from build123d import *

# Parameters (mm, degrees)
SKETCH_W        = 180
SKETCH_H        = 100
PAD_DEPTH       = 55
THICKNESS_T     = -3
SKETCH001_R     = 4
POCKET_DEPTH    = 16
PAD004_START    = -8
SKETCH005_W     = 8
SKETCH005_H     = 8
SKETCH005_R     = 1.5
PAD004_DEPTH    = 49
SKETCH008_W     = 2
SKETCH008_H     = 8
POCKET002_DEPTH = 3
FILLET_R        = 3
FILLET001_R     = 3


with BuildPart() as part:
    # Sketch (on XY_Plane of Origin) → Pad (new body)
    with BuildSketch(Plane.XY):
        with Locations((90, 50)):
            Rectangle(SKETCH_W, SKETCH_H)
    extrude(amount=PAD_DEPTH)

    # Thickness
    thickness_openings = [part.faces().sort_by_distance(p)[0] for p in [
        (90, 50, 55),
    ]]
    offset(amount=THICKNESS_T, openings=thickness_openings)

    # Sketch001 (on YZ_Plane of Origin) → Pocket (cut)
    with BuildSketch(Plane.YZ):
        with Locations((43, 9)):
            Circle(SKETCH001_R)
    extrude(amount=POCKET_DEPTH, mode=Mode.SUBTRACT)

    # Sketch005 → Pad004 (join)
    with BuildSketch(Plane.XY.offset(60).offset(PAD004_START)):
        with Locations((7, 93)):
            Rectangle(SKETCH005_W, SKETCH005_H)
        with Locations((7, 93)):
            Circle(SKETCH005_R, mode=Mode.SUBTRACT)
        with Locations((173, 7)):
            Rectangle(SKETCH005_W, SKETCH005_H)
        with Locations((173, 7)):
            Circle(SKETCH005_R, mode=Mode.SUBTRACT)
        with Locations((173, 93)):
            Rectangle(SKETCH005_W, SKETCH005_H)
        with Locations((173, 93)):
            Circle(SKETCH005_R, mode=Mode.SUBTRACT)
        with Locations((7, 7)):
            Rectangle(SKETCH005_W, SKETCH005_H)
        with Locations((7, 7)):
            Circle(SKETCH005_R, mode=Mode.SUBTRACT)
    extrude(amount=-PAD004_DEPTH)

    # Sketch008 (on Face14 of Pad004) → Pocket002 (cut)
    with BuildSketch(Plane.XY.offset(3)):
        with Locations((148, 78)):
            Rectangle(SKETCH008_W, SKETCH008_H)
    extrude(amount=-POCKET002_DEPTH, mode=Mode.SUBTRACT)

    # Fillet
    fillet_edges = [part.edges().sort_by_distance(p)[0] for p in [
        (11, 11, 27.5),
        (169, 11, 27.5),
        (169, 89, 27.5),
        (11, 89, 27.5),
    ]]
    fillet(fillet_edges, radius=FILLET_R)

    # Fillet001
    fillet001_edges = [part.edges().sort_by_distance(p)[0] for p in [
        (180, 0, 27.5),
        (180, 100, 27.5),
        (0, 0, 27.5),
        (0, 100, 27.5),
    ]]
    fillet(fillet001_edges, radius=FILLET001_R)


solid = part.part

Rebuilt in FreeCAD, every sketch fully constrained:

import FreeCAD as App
import Part
import Sketcher

V = App.Vector
Q = App.Units.Quantity


def edges_at(feature, points):
    """Names of the edges that pass closest to the given points."""
    edges = feature.Shape.Edges
    near = lambda p: min(range(len(edges)), key=lambda i: edges[i].distToShape(Part.Vertex(*p))[0])
    return sorted({f"Edge{near(p) + 1}" for p in points})


def faces_at(feature, points):
    """Names of the faces that lie closest to the given points."""
    faces = feature.Shape.Faces
    near = lambda p: min(range(len(faces)), key=lambda i: faces[i].distToShape(Part.Vertex(*p))[0])
    return sorted({f"Face{near(p) + 1}" for p in points})

doc = App.newDocument("Part")
body = doc.addObject("PartDesign::Body", "Body")

sketch1 = body.newObject("Sketcher::SketchObject", "Sketch")
sketch1.AttachmentSupport = (doc.getObject("XY_Plane"), [""])
sketch1.MapMode = "FlatFace"
sketch1.addGeometry([
    Part.LineSegment(V(0, 100, 0), V(0, 0, 0)),
    Part.LineSegment(V(0, 0, 0), V(180, 0, 0)),
    Part.LineSegment(V(180, 0, 0), V(180, 100, 0)),
    Part.LineSegment(V(180, 100, 0), V(0, 100, 0)),
], False)
sketch1.addConstraint([
    Sketcher.Constraint("Coincident", 0, 2, 1, 1),
    Sketcher.Constraint("Coincident", 1, 2, 2, 1),
    Sketcher.Constraint("Coincident", 2, 2, 3, 1),
    Sketcher.Constraint("Coincident", 3, 2, 0, 1),
    Sketcher.Constraint("Vertical", 0),
    Sketcher.Constraint("Horizontal", 1),
    Sketcher.Constraint("Vertical", 2),
    Sketcher.Constraint("Horizontal", 3),
    Sketcher.Constraint("Coincident", 0, 2, -1, 1),
    Sketcher.Constraint("DistanceX", 1, 1, 1, 2, Q("180 mm")),
    Sketcher.Constraint("DistanceY", 0, 2, 0, 1, Q("100 mm")),
])
pad1 = body.newObject("PartDesign::Pad", "Pad")
pad1.Profile = sketch1
pad1.Length = 55
doc.recompute()

thickness = body.newObject("PartDesign::Thickness", "Thickness")
thickness.Base = (pad1, faces_at(pad1, [(90, 50, 55)]))
thickness.Value = 3
thickness.Reversed = True
thickness.Join = "Arc"

sketch2 = body.newObject("Sketcher::SketchObject", "Sketch001")
sketch2.AttachmentSupport = (doc.getObject("YZ_Plane"), [""])
sketch2.MapMode = "FlatFace"
sketch2.addGeometry(Part.Circle(V(43, 9, 0), V(0, 0, 1), 4), False)
sketch2.addConstraint([
    Sketcher.Constraint("Diameter", 0, Q("8 mm")),
    Sketcher.Constraint("DistanceX", -1, 1, 0, 3, Q("43 mm")),
    Sketcher.Constraint("DistanceY", -1, 1, 0, 3, Q("9 mm")),
])
pocket1 = body.newObject("PartDesign::Pocket", "Pocket")
pocket1.Profile = sketch2
pocket1.Length = 16
pocket1.Reversed = True

sketch3 = body.newObject("Sketcher::SketchObject", "Sketch002")
sketch3.AttachmentSupport = (doc.getObject("XY_Plane"), [""])
sketch3.MapMode = "FlatFace"
sketch3.AttachmentOffset = App.Placement(V(0, 0, 52), App.Rotation())
sketch3.addGeometry([
    Part.LineSegment(V(3, 97, 0), V(3, 89, 0)),
    Part.LineSegment(V(3, 89, 0), V(11, 89, 0)),
    Part.LineSegment(V(11, 89, 0), V(11, 97, 0)),
    Part.LineSegment(V(11, 97, 0), V(3, 97, 0)),
    Part.Circle(V(7, 93, 0), V(0, 0, 1), 1.5),
    Part.LineSegment(V(169, 11, 0), V(169, 3, 0)),
    Part.LineSegment(V(169, 3, 0), V(177, 3, 0)),
    Part.LineSegment(V(177, 3, 0), V(177, 11, 0)),
    Part.LineSegment(V(177, 11, 0), V(169, 11, 0)),
    Part.Circle(V(173, 7, 0), V(0, 0, 1), 1.5),
    Part.LineSegment(V(169, 97, 0), V(169, 89, 0)),
    Part.LineSegment(V(169, 89, 0), V(177, 89, 0)),
    Part.LineSegment(V(177, 89, 0), V(177, 97, 0)),
    Part.LineSegment(V(177, 97, 0), V(169, 97, 0)),
    Part.Circle(V(173, 93, 0), V(0, 0, 1), 1.5),
    Part.LineSegment(V(3, 11, 0), V(3, 3, 0)),
    Part.LineSegment(V(3, 3, 0), V(11, 3, 0)),
    Part.LineSegment(V(11, 3, 0), V(11, 11, 0)),
    Part.LineSegment(V(11, 11, 0), V(3, 11, 0)),
    Part.Circle(V(7, 7, 0), V(0, 0, 1), 1.5),
], False)
sketch3.addConstraint([
    Sketcher.Constraint("Coincident", 0, 2, 1, 1),
    Sketcher.Constraint("Coincident", 1, 2, 2, 1),
    Sketcher.Constraint("Coincident", 2, 2, 3, 1),
    Sketcher.Constraint("Coincident", 3, 2, 0, 1),
    Sketcher.Constraint("Coincident", 5, 2, 6, 1),
    Sketcher.Constraint("Coincident", 6, 2, 7, 1),
    Sketcher.Constraint("Coincident", 7, 2, 8, 1),
    Sketcher.Constraint("Coincident", 8, 2, 5, 1),
    Sketcher.Constraint("Coincident", 10, 2, 11, 1),
    Sketcher.Constraint("Coincident", 11, 2, 12, 1),
    Sketcher.Constraint("Coincident", 12, 2, 13, 1),
    Sketcher.Constraint("Coincident", 13, 2, 10, 1),
    Sketcher.Constraint("Coincident", 15, 2, 16, 1),
    Sketcher.Constraint("Coincident", 16, 2, 17, 1),
    Sketcher.Constraint("Coincident", 17, 2, 18, 1),
    Sketcher.Constraint("Coincident", 18, 2, 15, 1),
    Sketcher.Constraint("Vertical", 0),
    Sketcher.Constraint("Horizontal", 1),
    Sketcher.Constraint("Vertical", 2),
    Sketcher.Constraint("Horizontal", 3),
    Sketcher.Constraint("Vertical", 5),
    Sketcher.Constraint("Horizontal", 6),
    Sketcher.Constraint("Vertical", 7),
    Sketcher.Constraint("Horizontal", 8),
    Sketcher.Constraint("Vertical", 10),
    Sketcher.Constraint("Horizontal", 11),
    Sketcher.Constraint("Vertical", 12),
    Sketcher.Constraint("Horizontal", 13),
    Sketcher.Constraint("Vertical", 15),
    Sketcher.Constraint("Horizontal", 16),
    Sketcher.Constraint("Vertical", 17),
    Sketcher.Constraint("Horizontal", 18),
    Sketcher.Constraint("Equal", 4, 9),
    Sketcher.Constraint("Equal", 9, 14),
    Sketcher.Constraint("Equal", 14, 19),
    Sketcher.Constraint("Horizontal", 4, 3, 14, 3),
    Sketcher.Constraint("Horizontal", 9, 3, 19, 3),
    Sketcher.Constraint("Horizontal", 1, 2, 10, 2),
    Sketcher.Constraint("Horizontal", 3, 2, 12, 2),
    Sketcher.Constraint("Horizontal", 6, 2, 15, 2),
    Sketcher.Constraint("Horizontal", 8, 2, 17, 2),
    Sketcher.Constraint("Vertical", 9, 3, 14, 3),
    Sketcher.Constraint("Vertical", 4, 3, 19, 3),
    Sketcher.Constraint("Vertical", 8, 2, 10, 2),
    Sketcher.Constraint("Vertical", 7, 2, 11, 2),
    Sketcher.Constraint("Vertical", 3, 2, 15, 2),
    Sketcher.Constraint("Vertical", 2, 2, 16, 2),
    Sketcher.Constraint("Equal", 3, 6),
    Sketcher.Constraint("Equal", 18, 0),
    Sketcher.Constraint("Equal", 2, 5),
    Sketcher.Constraint("Diameter", 4, Q("3 mm")),
    Sketcher.Constraint("DistanceX", 1, 1, 1, 2, Q("8 mm")),
    Sketcher.Constraint("DistanceX", -1, 1, 4, 3, Q("7 mm")),
    Sketcher.Constraint("DistanceY", -1, 1, 4, 3, Q("93 mm")),
    Sketcher.Constraint("DistanceX", -1, 1, 9, 3, Q("173 mm")),
    Sketcher.Constraint("DistanceY", -1, 1, 9, 3, Q("7 mm")),
    Sketcher.Constraint("DistanceX", -1, 1, 0, 2, Q("3 mm")),
    Sketcher.Constraint("DistanceY", -1, 1, 0, 2, Q("89 mm")),
    Sketcher.Constraint("DistanceX", -1, 1, 5, 2, Q("169 mm")),
    Sketcher.Constraint("DistanceY", -1, 1, 5, 2, Q("3 mm")),
])
pad2 = body.newObject("PartDesign::Pad", "Pad001")
pad2.Profile = sketch3
pad2.Length = 49
pad2.Reversed = True

sketch4 = body.newObject("Sketcher::SketchObject", "Sketch003")
sketch4.AttachmentSupport = (doc.getObject("XY_Plane"), [""])
sketch4.MapMode = "FlatFace"
sketch4.AttachmentOffset = App.Placement(V(0, 0, 3), App.Rotation())
sketch4.addGeometry([
    Part.LineSegment(V(147, 82, 0), V(147, 74, 0)),
    Part.LineSegment(V(147, 74, 0), V(149, 74, 0)),
    Part.LineSegment(V(149, 74, 0), V(149, 82, 0)),
    Part.LineSegment(V(149, 82, 0), V(147, 82, 0)),
], False)
sketch4.addConstraint([
    Sketcher.Constraint("Coincident", 0, 2, 1, 1),
    Sketcher.Constraint("Coincident", 1, 2, 2, 1),
    Sketcher.Constraint("Coincident", 2, 2, 3, 1),
    Sketcher.Constraint("Coincident", 3, 2, 0, 1),
    Sketcher.Constraint("Vertical", 0),
    Sketcher.Constraint("Horizontal", 1),
    Sketcher.Constraint("Vertical", 2),
    Sketcher.Constraint("Horizontal", 3),
    Sketcher.Constraint("DistanceX", 1, 1, 1, 2, Q("2 mm")),
    Sketcher.Constraint("DistanceY", 0, 2, 0, 1, Q("8 mm")),
    Sketcher.Constraint("DistanceX", -1, 1, 0, 2, Q("147 mm")),
    Sketcher.Constraint("DistanceY", -1, 1, 0, 2, Q("74 mm")),
])
pocket2 = body.newObject("PartDesign::Pocket", "Pocket001")
pocket2.Profile = sketch4
pocket2.Length = 3
doc.recompute()

fillet = body.newObject("PartDesign::Fillet", "Fillet")
fillet.Base = (pocket2, edges_at(pocket2, [
    (11, 11, 27.5),
    (169, 11, 27.5),
    (169, 89, 27.5),
    (11, 89, 27.5),
]))
fillet.Radius = 3
doc.recompute()

fillet2 = body.newObject("PartDesign::Fillet", "Fillet001")
fillet2.Base = (fillet, edges_at(fillet, [
    (180, 0, 27.5),
    (180, 100, 27.5),
    (0, 0, 27.5),
    (0, 100, 27.5),
]))
fillet2.Radius = 3

doc.recompute()
